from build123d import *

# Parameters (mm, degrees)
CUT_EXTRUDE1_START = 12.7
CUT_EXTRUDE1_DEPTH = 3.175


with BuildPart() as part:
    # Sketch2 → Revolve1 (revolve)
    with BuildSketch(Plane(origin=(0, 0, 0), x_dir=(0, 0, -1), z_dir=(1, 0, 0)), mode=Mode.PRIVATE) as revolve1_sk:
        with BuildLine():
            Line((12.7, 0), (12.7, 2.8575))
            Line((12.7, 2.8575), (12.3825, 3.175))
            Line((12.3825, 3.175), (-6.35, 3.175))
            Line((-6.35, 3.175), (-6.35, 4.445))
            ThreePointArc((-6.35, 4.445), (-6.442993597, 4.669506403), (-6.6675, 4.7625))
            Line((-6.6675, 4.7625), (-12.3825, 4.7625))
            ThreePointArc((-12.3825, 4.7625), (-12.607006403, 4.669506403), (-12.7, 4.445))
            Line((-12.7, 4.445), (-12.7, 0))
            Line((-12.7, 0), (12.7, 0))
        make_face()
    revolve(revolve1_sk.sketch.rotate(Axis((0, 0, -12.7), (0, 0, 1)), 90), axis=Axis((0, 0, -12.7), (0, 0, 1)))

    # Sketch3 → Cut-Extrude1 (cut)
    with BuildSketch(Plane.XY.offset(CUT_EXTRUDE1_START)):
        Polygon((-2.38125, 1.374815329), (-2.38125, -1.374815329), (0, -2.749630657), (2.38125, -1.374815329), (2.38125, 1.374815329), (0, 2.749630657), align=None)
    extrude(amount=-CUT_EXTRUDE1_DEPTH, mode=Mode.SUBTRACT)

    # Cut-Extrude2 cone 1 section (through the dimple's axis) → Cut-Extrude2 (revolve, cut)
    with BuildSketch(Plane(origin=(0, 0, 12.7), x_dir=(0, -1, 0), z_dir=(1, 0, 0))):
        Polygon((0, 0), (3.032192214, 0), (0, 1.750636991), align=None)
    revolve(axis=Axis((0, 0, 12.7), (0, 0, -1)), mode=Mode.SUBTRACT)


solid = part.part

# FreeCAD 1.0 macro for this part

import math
import FreeCAD as App
import Part
import Sketcher
from FreeCAD import Vector
Q = App.Units.Quantity


def add_polygon(sketch, points):
    """Adds a closed chain of lines whose ends are joined by coincident constraints."""
    first, n = sketch.GeometryCount, len(points)
    for a, b in zip(points, points[1:] + points[:1]):
        sketch.addGeometry(Part.LineSegment(App.Vector(*a, 0), App.Vector(*b, 0)), False)
    for i in range(n):
        sketch.addConstraint(Sketcher.Constraint("Coincident", first + i, 2, first + (i + 1) % n, 1))

doc = App.newDocument("Part")
body = doc.addObject("PartDesign::Body", "Body")

# Sketch on YZ plane
sketch1 = body.newObject("Sketcher::SketchObject", "Sketch")
sketch1.AttachmentSupport = (doc.getObject("YZ_Plane"), [""])
sketch1.MapMode = "FlatFace"
sketch1.addGeometry(Part.LineSegment(Vector(0, -12.7, 0), Vector(2.86, -12.7, 0)), False)
sketch1.addGeometry(Part.LineSegment(Vector(2.86, -12.7, 0), Vector(3.17, -12.38, 0)), False)
sketch1.addGeometry(Part.LineSegment(Vector(3.17, -12.38, 0), Vector(3.17, 6.35, 0)), False)
sketch1.addGeometry(Part.LineSegment(Vector(3.17, 6.35, 0), Vector(4.45, 6.35, 0)), False)
sketch1.addGeometry(Part.ArcOfCircle(Part.Circle(Vector(4.45, 6.67, 0), Vector(0, 0, 1), 0.32), math.radians(-90), math.radians(0)), False)
sketch1.addGeometry(Part.LineSegment(Vector(4.76, 6.67, 0), Vector(4.76, 12.38, 0)), False)
sketch1.addGeometry(Part.ArcOfCircle(Part.Circle(Vector(4.45, 12.38, 0), Vector(0, 0, 1), 0.32), math.radians(0), math.radians(90)), False)
sketch1.addGeometry(Part.LineSegment(Vector(4.45, 12.7, 0), Vector(0, 12.7, 0)), False)
sketch1.addGeometry(Part.LineSegment(Vector(0, 12.7, 0), Vector(0, -12.7, 0)), False)
sketch1.addConstraint(Sketcher.Constraint("Coincident", 0, 2, 1, 1))
sketch1.addConstraint(Sketcher.Constraint("Coincident", 1, 2, 2, 1))
sketch1.addConstraint(Sketcher.Constraint("Coincident", 2, 2, 3, 1))
sketch1.addConstraint(Sketcher.Constraint("Tangent", 3, 2, 4, 1))
sketch1.addConstraint(Sketcher.Constraint("Tangent", 4, 2, 5, 1))
sketch1.addConstraint(Sketcher.Constraint("Tangent", 5, 2, 6, 1))
sketch1.addConstraint(Sketcher.Constraint("Tangent", 6, 2, 7, 1))
sketch1.addConstraint(Sketcher.Constraint("Coincident", 7, 2, 8, 1))
sketch1.addConstraint(Sketcher.Constraint("Coincident", 8, 2, 0, 1))
sketch1.addConstraint(Sketcher.Constraint("Horizontal", 0))
sketch1.addConstraint(Sketcher.Constraint("Vertical", 2))
sketch1.addConstraint(Sketcher.Constraint("Horizontal", 3))
sketch1.addConstraint(Sketcher.Constraint("Vertical", 5))
sketch1.addConstraint(Sketcher.Constraint("Horizontal", 7))
sketch1.addConstraint(Sketcher.Constraint("Vertical", 8))
sketch1.addConstraint(Sketcher.Constraint("Equal", 4, 6))
sketch1.addConstraint(Sketcher.Constraint("Symmetric", 7, 2, 8, 2, -1, 1))
sketch1.addConstraint(Sketcher.Constraint("DistanceY", 8, 2, 8, 1, Q("1 in")))
sketch1.addConstraint(Sketcher.Constraint("Angle", 1, Q("45 deg")))
sketch1.addConstraint(Sketcher.Constraint("DistanceX", 3, 1, 3, 2, Q("0.05 in")))
sketch1.addConstraint(Sketcher.Constraint("Radius", 4, Q("0.0125 in")))
sketch1.addConstraint(Sketcher.Constraint("DistanceX", 7, 2, 7, 1, Q("0.175 in")))
sketch1.addConstraint(Sketcher.Constraint("DistanceY", 5, 1, 5, 2, Q("0.225 in")))
sketch1.addConstraint(Sketcher.Constraint("DistanceY", 1, 2, 4, 3, Q("0.75 in")))
revolution = body.newObject("PartDesign::Revolution", "Revolution")
revolution.Profile = sketch1
revolution.ReferenceAxis = (sketch1, ["V_Axis"])
revolution.Angle = 360

# Sketch on XY plane
sketch2 = body.newObject("Sketcher::SketchObject", "Sketch001")
sketch2.AttachmentSupport = (doc.getObject("XY_Plane"), [""])
sketch2.MapMode = "FlatFace"
sketch2.AttachmentOffset = App.Placement(Vector(0, 0, 0.5 * 25.4), App.Rotation())
add_polygon(sketch2, [(-2.4, 1.4), (-2.4, -1.4), (0, -2.7), (2.4, -1.4), (2.4, 1.4), (0, 2.7)])  # lines 0-5
sketch2.addConstraint(Sketcher.Constraint("Vertical", 0))
sketch2.addConstraint(Sketcher.Constraint("Vertical", 3))
sketch2.addConstraint(Sketcher.Constraint("Symmetric", 0, 2, 3, 2, -1, 1))
sketch2.addConstraint(Sketcher.Constraint("Symmetric", 1, 2, 4, 2, -1, 1))
sketch2.addConstraint(Sketcher.Constraint("PointOnObject", 1, 2, -2))
sketch2.addConstraint(Sketcher.Constraint("Parallel", 2, 5))
sketch2.addConstraint(Sketcher.Constraint("Horizontal", 0, 2, 2, 2))
sketch2.addConstraint(Sketcher.Constraint("Angle", 1, Q("-30 deg")))
sketch2.addConstraint(Sketcher.Constraint("DistanceX", 0, 2, -1, 1, Q("0.09375 in")))
sketch2.addConstraint(Sketcher.Constraint("DistanceY", 0, 2, 0, 1, Q("2.749631 mm")))
pocket1 = body.newObject("PartDesign::Pocket", "Pocket")
pocket1.Profile = sketch2
pocket1.Length = Q("0.125 in")

# Sketch on YZ plane
sketch3 = body.newObject("Sketcher::SketchObject", "Sketch002")
sketch3.AttachmentSupport = (doc.getObject("YZ_Plane"), [""])
sketch3.MapMode = "FlatFace"
add_polygon(sketch3, [(0, 12.7), (-3, 12.7), (0, 10.9)])  # lines 0-2
sketch3.addConstraint(Sketcher.Constraint("Horizontal", 0))
sketch3.addConstraint(Sketcher.Constraint("Vertical", 2))
sketch3.addConstraint(Sketcher.Constraint("PointOnObject", 1, 2, -2))
sketch3.addConstraint(Sketcher.Constraint("Angle", 1, Q("-30 deg")))
sketch3.addConstraint(Sketcher.Constraint("DistanceY", -1, 1, 0, 2, Q("0.5 in")))
sketch3.addConstraint(Sketcher.Constraint("DistanceX", 0, 2, 0, 1, Q("3.032192 mm")))
groove = body.newObject("PartDesign::Groove", "Groove")
groove.Profile = sketch3
groove.ReferenceAxis = (sketch3, ["V_Axis"])
groove.Angle = 360

doc.recompute()
